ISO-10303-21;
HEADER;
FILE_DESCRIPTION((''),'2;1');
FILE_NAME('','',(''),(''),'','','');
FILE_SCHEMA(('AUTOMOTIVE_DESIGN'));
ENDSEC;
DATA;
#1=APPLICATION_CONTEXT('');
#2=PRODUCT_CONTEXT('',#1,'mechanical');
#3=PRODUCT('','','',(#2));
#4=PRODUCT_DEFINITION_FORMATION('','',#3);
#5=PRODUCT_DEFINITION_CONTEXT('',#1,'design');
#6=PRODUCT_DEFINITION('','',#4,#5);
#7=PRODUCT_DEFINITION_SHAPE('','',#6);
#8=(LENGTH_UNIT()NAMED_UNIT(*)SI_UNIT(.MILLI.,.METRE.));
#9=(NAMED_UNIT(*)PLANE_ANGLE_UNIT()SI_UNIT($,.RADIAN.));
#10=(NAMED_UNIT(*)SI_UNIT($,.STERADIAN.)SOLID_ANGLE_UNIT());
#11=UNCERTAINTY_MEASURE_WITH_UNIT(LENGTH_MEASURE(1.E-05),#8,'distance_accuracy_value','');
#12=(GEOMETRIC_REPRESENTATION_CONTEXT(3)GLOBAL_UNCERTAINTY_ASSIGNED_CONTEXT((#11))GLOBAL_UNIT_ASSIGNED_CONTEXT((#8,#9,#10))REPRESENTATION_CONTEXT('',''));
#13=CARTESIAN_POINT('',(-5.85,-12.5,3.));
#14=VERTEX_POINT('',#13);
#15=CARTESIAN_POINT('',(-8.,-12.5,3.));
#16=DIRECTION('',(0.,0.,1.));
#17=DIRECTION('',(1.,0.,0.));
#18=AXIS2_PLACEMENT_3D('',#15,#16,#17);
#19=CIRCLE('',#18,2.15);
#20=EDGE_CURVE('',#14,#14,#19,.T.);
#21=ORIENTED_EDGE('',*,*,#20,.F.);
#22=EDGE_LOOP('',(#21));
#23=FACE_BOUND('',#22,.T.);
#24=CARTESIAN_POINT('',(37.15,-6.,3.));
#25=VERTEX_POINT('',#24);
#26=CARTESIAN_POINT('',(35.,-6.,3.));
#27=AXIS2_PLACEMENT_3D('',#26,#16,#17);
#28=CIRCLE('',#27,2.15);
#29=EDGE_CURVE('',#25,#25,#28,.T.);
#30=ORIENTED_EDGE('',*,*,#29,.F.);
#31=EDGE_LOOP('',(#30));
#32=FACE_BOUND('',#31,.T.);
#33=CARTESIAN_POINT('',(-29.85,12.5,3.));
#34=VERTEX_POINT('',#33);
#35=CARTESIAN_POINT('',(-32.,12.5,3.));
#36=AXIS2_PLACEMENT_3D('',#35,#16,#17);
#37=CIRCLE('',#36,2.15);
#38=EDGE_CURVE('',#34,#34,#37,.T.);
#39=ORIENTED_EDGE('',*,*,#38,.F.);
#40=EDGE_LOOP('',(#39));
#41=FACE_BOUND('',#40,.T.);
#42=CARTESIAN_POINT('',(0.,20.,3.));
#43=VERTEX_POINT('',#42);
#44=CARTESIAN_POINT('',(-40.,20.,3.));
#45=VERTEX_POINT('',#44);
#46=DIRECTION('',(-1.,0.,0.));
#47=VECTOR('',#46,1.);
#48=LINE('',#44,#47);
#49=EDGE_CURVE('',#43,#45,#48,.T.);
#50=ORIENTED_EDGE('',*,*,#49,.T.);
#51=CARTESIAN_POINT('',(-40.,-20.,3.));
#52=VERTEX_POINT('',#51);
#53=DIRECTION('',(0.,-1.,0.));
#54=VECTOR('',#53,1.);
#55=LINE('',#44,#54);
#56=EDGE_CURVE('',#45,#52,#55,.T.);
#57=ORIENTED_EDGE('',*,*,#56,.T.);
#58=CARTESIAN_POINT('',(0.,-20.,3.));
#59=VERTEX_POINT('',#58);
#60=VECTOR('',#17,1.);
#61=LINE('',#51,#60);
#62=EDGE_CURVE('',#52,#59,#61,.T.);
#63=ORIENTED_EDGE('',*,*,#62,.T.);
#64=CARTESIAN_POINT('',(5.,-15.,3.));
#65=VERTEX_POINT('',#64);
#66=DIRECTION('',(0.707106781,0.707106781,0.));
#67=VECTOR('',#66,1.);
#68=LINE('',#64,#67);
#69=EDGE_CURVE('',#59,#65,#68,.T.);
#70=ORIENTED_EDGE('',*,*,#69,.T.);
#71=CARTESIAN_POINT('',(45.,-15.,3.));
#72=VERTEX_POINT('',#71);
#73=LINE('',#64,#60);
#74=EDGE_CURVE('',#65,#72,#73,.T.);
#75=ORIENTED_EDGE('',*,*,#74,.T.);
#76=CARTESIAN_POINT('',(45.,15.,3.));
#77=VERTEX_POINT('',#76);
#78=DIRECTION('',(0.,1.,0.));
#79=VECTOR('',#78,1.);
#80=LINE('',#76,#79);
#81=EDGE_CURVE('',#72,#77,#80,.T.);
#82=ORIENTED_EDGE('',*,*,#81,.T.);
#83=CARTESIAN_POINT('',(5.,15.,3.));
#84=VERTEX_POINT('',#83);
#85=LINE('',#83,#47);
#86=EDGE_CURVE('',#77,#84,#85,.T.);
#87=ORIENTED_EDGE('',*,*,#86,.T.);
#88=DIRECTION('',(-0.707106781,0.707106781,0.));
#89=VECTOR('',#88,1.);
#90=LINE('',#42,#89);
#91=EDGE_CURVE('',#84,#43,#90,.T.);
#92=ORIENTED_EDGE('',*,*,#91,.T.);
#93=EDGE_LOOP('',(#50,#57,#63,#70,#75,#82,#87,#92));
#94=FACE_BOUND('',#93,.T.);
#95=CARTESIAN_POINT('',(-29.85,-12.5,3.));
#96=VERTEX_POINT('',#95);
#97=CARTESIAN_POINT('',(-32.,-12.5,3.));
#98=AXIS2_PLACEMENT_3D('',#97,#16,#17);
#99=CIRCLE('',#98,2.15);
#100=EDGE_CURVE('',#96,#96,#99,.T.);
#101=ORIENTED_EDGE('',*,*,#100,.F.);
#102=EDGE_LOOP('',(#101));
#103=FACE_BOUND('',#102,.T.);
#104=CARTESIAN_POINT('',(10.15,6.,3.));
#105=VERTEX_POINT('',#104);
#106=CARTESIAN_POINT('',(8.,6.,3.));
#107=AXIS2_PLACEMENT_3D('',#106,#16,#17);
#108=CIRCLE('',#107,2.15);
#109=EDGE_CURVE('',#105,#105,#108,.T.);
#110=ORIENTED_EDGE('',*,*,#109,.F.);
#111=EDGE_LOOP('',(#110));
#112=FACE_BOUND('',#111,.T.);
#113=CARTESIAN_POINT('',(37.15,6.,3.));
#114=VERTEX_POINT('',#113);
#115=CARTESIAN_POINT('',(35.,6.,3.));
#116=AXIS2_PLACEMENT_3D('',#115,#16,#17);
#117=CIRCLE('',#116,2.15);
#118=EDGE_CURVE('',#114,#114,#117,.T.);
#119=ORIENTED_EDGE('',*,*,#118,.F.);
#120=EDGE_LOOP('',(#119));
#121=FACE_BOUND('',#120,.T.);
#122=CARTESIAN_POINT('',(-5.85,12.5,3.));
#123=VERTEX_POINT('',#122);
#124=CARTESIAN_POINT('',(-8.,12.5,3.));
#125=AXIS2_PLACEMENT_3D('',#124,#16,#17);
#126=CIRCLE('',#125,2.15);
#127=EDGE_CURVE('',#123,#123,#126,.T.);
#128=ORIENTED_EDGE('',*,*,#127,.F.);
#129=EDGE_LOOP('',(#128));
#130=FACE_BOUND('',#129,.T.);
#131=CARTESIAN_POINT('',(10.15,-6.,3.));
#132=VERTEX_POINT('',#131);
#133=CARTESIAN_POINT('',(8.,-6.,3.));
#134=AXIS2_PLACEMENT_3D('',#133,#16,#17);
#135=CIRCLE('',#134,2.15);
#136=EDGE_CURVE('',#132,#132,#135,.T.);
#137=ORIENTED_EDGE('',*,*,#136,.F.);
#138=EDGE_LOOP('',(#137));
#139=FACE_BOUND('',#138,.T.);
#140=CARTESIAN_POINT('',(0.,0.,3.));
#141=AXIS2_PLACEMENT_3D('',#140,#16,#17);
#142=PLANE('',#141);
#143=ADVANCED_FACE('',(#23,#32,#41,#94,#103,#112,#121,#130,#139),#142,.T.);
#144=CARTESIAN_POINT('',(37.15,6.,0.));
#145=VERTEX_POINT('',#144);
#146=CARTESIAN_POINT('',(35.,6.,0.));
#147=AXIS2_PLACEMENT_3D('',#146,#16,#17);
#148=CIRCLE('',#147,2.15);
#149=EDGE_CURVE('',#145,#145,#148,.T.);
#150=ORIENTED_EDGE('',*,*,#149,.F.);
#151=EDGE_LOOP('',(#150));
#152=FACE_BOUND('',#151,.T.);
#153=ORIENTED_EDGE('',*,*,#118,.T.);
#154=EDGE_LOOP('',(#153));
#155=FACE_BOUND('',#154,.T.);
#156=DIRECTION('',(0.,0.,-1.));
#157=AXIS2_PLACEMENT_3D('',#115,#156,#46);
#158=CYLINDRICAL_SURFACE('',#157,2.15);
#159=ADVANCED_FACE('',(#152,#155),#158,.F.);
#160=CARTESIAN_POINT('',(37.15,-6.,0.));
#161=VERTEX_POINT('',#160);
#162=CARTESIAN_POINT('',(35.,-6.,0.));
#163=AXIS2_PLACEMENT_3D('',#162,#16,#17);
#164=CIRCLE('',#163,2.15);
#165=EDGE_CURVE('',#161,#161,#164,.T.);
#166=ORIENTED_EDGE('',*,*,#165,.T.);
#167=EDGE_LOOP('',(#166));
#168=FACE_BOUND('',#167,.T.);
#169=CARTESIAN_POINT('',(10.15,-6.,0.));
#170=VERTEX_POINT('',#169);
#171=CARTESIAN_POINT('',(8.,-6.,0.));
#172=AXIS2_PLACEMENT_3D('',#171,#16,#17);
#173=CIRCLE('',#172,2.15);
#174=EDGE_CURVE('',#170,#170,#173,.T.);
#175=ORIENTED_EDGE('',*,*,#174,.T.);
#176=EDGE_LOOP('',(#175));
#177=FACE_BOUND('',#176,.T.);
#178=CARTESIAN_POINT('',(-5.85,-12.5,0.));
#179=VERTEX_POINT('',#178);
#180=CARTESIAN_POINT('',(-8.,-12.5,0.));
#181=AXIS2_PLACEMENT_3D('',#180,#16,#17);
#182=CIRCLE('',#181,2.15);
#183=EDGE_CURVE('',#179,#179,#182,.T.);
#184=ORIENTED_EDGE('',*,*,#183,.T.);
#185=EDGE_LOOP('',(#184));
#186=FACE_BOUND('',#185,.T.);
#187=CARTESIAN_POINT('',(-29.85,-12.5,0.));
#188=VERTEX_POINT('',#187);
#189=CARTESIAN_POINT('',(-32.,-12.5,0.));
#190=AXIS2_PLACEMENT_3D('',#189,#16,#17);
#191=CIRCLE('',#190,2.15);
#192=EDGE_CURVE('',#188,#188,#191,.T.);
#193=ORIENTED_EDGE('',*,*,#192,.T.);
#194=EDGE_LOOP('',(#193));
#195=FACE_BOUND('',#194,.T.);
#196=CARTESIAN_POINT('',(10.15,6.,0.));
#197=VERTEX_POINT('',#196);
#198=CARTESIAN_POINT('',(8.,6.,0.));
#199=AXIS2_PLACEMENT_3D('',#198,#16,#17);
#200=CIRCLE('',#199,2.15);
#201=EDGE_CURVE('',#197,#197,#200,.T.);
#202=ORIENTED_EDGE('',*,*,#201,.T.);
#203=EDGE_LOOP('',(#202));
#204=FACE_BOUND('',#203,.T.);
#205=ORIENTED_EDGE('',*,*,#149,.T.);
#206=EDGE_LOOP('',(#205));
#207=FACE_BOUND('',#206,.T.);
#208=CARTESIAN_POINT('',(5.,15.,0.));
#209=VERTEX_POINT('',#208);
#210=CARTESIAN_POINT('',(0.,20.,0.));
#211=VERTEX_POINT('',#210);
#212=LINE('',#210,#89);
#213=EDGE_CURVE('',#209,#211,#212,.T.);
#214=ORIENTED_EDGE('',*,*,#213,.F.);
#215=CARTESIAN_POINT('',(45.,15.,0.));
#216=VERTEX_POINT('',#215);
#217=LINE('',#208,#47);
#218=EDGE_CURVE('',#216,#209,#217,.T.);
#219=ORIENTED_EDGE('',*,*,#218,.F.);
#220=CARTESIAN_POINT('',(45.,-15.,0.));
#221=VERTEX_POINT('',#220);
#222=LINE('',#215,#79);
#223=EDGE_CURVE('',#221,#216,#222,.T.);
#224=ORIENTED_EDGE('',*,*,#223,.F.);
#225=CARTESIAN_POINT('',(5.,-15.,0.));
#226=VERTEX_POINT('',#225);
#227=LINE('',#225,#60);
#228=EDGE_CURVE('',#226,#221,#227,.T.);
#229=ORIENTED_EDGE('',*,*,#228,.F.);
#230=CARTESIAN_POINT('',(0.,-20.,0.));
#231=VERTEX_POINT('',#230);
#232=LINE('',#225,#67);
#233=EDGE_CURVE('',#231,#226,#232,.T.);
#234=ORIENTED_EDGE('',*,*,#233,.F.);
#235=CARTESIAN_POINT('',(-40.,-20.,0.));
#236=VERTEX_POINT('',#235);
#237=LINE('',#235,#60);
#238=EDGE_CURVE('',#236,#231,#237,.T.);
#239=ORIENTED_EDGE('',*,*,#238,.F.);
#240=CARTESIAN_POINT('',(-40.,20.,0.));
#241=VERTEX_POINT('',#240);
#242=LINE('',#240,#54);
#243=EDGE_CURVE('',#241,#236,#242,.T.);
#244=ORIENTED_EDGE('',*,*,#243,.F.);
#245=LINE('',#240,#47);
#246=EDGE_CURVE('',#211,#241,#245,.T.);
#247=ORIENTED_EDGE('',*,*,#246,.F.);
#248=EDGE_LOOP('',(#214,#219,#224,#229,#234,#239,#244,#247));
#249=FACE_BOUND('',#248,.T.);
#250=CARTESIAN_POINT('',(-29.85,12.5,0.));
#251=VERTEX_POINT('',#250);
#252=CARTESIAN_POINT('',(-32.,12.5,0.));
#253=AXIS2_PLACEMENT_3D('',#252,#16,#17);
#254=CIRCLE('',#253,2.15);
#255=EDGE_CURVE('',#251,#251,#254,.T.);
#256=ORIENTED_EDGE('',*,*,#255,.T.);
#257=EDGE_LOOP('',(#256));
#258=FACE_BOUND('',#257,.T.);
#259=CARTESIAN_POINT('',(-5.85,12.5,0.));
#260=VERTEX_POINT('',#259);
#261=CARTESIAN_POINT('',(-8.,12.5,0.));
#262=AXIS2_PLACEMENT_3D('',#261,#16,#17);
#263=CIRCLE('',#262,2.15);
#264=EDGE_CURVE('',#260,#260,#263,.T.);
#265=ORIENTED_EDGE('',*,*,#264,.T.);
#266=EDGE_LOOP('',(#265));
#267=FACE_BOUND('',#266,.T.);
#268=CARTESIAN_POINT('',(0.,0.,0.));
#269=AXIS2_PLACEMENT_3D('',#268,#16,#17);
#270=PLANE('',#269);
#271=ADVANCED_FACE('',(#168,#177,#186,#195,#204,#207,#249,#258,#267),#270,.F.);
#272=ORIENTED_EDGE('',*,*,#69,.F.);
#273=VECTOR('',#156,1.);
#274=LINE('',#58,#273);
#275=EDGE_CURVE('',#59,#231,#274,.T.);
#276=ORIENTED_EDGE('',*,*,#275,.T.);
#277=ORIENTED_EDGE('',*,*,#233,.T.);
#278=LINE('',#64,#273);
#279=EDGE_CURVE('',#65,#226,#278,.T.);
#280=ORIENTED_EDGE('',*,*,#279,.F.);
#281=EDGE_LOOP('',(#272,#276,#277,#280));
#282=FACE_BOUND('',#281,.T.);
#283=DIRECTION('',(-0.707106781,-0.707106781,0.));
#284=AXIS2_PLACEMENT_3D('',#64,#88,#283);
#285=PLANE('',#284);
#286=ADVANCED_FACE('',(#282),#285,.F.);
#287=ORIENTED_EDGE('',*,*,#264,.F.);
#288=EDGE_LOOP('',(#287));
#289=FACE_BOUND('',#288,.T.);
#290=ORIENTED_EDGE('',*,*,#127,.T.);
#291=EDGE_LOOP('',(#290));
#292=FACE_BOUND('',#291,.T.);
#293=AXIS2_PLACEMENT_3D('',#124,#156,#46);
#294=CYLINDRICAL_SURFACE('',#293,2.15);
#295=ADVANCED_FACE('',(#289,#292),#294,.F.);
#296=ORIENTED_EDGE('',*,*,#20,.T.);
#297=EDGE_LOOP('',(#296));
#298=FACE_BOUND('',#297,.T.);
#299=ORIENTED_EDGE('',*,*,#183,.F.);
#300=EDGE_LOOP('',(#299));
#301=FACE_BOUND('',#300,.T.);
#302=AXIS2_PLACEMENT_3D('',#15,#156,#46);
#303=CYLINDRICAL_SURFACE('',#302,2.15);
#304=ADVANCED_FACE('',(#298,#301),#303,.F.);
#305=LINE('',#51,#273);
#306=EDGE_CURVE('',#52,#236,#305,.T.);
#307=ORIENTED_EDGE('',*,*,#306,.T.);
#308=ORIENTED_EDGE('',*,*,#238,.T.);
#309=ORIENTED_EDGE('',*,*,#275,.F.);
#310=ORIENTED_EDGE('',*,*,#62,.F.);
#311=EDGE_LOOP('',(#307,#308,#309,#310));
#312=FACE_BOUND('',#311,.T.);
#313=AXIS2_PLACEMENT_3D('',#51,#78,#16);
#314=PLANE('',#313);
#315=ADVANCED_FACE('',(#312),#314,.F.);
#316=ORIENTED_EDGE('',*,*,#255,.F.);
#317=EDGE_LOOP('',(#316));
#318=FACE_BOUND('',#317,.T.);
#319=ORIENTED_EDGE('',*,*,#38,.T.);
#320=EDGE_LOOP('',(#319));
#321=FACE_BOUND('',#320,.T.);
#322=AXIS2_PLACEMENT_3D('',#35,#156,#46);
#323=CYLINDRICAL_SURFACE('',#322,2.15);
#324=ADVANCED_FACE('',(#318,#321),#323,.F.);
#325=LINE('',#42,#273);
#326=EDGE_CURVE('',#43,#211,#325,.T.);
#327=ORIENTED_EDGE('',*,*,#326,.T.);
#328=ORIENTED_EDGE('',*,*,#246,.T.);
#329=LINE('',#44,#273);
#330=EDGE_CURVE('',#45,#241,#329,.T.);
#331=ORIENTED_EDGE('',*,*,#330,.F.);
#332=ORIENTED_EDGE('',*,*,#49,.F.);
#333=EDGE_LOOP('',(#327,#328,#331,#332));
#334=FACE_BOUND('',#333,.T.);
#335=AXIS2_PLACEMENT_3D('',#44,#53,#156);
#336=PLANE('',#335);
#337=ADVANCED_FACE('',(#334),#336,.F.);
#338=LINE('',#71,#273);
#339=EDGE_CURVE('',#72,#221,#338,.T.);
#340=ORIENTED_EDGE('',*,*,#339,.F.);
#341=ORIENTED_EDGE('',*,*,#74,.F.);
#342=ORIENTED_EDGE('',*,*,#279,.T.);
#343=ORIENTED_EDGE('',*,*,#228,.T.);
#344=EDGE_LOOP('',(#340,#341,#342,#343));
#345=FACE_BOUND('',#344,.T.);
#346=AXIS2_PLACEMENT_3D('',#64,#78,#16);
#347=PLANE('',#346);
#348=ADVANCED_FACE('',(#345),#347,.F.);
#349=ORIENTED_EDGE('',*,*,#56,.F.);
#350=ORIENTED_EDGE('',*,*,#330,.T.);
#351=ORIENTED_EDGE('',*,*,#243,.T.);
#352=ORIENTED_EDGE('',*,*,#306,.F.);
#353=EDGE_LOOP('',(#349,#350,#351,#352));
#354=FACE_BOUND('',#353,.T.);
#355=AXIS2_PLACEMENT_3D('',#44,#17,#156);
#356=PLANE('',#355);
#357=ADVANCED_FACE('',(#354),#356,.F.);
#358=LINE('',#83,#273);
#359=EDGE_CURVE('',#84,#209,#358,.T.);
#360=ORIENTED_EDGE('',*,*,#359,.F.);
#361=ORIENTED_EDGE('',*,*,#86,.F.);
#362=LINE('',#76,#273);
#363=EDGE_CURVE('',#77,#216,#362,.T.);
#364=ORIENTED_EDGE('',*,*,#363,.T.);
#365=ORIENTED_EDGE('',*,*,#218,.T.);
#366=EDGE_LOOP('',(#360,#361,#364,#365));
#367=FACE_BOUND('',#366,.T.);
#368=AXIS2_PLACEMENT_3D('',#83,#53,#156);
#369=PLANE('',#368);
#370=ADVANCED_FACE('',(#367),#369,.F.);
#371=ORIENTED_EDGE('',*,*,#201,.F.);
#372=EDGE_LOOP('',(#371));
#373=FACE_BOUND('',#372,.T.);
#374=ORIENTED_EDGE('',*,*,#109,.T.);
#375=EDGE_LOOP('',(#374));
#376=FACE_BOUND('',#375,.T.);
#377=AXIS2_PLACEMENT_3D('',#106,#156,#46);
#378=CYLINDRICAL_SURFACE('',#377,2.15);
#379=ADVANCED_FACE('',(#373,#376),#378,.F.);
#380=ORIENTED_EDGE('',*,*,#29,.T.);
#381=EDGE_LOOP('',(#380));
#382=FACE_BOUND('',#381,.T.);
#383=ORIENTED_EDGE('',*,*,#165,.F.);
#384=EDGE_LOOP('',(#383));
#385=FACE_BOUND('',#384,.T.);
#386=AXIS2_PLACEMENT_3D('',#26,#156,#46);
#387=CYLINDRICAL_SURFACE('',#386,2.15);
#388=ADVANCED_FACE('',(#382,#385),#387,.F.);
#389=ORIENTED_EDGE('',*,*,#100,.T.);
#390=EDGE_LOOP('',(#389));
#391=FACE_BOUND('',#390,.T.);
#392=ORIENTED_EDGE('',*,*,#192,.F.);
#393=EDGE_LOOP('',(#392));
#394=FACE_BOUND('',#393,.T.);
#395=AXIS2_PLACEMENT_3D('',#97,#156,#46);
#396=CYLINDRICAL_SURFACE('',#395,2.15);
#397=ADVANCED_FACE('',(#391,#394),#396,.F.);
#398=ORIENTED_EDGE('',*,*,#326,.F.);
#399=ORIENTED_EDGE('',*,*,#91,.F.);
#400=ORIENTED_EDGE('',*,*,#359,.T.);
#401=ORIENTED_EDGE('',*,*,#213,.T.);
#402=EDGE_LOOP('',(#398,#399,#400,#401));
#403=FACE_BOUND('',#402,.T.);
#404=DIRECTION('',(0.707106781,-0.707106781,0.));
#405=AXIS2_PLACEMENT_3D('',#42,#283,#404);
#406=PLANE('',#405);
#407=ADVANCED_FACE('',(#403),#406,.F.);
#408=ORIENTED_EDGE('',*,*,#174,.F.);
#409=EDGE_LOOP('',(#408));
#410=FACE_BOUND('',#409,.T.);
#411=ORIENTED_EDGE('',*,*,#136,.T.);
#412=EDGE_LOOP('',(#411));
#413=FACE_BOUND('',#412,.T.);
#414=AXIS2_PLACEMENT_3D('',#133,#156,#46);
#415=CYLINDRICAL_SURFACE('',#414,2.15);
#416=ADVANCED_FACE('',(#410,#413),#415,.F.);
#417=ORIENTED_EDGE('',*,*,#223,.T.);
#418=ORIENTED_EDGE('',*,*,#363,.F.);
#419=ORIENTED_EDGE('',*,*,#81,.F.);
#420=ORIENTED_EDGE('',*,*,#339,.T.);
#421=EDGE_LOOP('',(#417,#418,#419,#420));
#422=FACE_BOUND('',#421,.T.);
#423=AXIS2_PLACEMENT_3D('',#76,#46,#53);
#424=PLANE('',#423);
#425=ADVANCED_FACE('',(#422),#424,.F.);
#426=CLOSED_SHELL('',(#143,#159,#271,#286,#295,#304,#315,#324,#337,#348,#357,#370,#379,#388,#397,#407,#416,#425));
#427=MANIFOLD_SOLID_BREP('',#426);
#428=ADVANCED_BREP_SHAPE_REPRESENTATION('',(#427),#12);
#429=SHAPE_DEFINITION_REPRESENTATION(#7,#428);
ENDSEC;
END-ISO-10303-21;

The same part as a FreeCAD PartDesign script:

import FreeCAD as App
import Part
import Sketcher
Q = App.Units.Quantity


def add_polygon(sketch, points):
    """Adds a closed chain of lines whose ends are joined by coincident constraints."""
    first, n = sketch.GeometryCount, len(points)
    for a, b in zip(points, points[1:] + points[:1]):
        sketch.addGeometry(Part.LineSegment(App.Vector(*a, 0), App.Vector(*b, 0)), False)
    for i in range(n):
        sketch.addConstraint(Sketcher.Constraint("Coincident", first + i, 2, first + (i + 1) % n, 1))

doc = App.newDocument("Part")
body = doc.addObject("PartDesign::Body", "Body")

# Sketch on XY plane
sketch1 = body.newObject("Sketcher::SketchObject", "Sketch")
sketch1.AttachmentSupport = (doc.getObject("XY_Plane"), [""])
sketch1.MapMode = "FlatFace"
add_polygon(sketch1, [(5, 15), (0, 20), (-40, 20), (-40, -20), (0, -20), (5, -15), (45, -15), (45, 15)])  # lines 0-7
sketch1.addGeometry(Part.Circle(App.Vector(35, -6, 0), App.Vector(0, 0, 1), 2.1), False)  # 8
sketch1.addGeometry(Part.Circle(App.Vector(8, -6, 0), App.Vector(0, 0, 1), 2.1), False)  # 9
sketch1.addGeometry(Part.Circle(App.Vector(-8, -12.5, 0), App.Vector(0, 0, 1), 2.1), False)  # 10
sketch1.addGeometry(Part.Circle(App.Vector(-32, -12.5, 0), App.Vector(0, 0, 1), 2.1), False)  # 11
sketch1.addGeometry(Part.Circle(App.Vector(35, 6, 0), App.Vector(0, 0, 1), 2.1), False)  # 12
sketch1.addGeometry(Part.Circle(App.Vector(8, 6, 0), App.Vector(0, 0, 1), 2.1), False)  # 13
sketch1.addGeometry(Part.Circle(App.Vector(-8, 12.5, 0), App.Vector(0, 0, 1), 2.1), False)  # 14
sketch1.addGeometry(Part.Circle(App.Vector(-32, 12.5, 0), App.Vector(0, 0, 1), 2.1), False)  # 15
sketch1.addConstraint(Sketcher.Constraint("Horizontal", 1))
sketch1.addConstraint(Sketcher.Constraint("Vertical", 2))
sketch1.addConstraint(Sketcher.Constraint("Horizontal", 3))
sketch1.addConstraint(Sketcher.Constraint("Horizontal", 5))
sketch1.addConstraint(Sketcher.Constraint("Vertical", 6))
sketch1.addConstraint(Sketcher.Constraint("Horizontal", 7))
sketch1.addConstraint(Sketcher.Constraint("Equal", 8, 9))
sketch1.addConstraint(Sketcher.Constraint("Equal", 9, 10))
sketch1.addConstraint(Sketcher.Constraint("Equal", 10, 11))
sketch1.addConstraint(Sketcher.Constraint("Equal", 11, 12))
sketch1.addConstraint(Sketcher.Constraint("Equal", 12, 13))
sketch1.addConstraint(Sketcher.Constraint("Equal", 13, 14))
sketch1.addConstraint(Sketcher.Constraint("Equal", 14, 15))
sketch1.addConstraint(Sketcher.Constraint("Symmetric", 0, 2, 3, 2, -1, 1))
sketch1.addConstraint(Sketcher.Constraint("Symmetric", 8, 3, 12, 3, -1))
sketch1.addConstraint(Sketcher.Constraint("Symmetric", 9, 3, 13, 3, -1))
sketch1.addConstraint(Sketcher.Constraint("Symmetric", 10, 3, 14, 3, -1))
sketch1.addConstraint(Sketcher.Constraint("Symmetric", 11, 3, 15, 3, -1))
sketch1.addConstraint(Sketcher.Constraint("Symmetric", 4, 2, 7, 2, -1))
sketch1.addConstraint(Sketcher.Constraint("PointOnObject", 0, 2, -2))
sketch1.addConstraint(Sketcher.Constraint("Perpendicular", 0, 4))
sketch1.addConstraint(Sketcher.Constraint("Horizontal", 8, 3, 9, 3))
sketch1.addConstraint(Sketcher.Constraint("Horizontal", 10, 3, 11, 3))
sketch1.addConstraint(Sketcher.Constraint("Equal", 3, 5))
sketch1.addConstraint(Sketcher.Constraint("Equal", 7, 2))
sketch1.addConstraint(Sketcher.Constraint("Diameter", 8, Q("4.3 mm")))
sketch1.addConstraint(Sketcher.Constraint("DistanceX", 1, 2, 1, 1, Q("40 mm")))
sketch1.addConstraint(Sketcher.Constraint("DistanceY", 6, 1, 6, 2, Q("30 mm")))
sketch1.addConstraint(Sketcher.Constraint("DistanceX", -1, 1, 8, 3, Q("35 mm")))
sketch1.addConstraint(Sketcher.Constraint("DistanceY", 8, 3, -1, 1, Q("6 mm")))
sketch1.addConstraint(Sketcher.Constraint("DistanceX", -1, 1, 9, 3, Q("8 mm")))
sketch1.addConstraint(Sketcher.Constraint("DistanceX", 10, 3, -1, 1, Q("8 mm")))
sketch1.addConstraint(Sketcher.Constraint("DistanceX", 11, 3, -1, 1, Q("32 mm")))
sketch1.addConstraint(Sketcher.Constraint("DistanceY", 10, 3, 14, 3, Q("25 mm")))
pad1 = body.newObject("PartDesign::Pad", "Pad")
pad1.Profile = sketch1
pad1.Length = 3

doc.recompute()
